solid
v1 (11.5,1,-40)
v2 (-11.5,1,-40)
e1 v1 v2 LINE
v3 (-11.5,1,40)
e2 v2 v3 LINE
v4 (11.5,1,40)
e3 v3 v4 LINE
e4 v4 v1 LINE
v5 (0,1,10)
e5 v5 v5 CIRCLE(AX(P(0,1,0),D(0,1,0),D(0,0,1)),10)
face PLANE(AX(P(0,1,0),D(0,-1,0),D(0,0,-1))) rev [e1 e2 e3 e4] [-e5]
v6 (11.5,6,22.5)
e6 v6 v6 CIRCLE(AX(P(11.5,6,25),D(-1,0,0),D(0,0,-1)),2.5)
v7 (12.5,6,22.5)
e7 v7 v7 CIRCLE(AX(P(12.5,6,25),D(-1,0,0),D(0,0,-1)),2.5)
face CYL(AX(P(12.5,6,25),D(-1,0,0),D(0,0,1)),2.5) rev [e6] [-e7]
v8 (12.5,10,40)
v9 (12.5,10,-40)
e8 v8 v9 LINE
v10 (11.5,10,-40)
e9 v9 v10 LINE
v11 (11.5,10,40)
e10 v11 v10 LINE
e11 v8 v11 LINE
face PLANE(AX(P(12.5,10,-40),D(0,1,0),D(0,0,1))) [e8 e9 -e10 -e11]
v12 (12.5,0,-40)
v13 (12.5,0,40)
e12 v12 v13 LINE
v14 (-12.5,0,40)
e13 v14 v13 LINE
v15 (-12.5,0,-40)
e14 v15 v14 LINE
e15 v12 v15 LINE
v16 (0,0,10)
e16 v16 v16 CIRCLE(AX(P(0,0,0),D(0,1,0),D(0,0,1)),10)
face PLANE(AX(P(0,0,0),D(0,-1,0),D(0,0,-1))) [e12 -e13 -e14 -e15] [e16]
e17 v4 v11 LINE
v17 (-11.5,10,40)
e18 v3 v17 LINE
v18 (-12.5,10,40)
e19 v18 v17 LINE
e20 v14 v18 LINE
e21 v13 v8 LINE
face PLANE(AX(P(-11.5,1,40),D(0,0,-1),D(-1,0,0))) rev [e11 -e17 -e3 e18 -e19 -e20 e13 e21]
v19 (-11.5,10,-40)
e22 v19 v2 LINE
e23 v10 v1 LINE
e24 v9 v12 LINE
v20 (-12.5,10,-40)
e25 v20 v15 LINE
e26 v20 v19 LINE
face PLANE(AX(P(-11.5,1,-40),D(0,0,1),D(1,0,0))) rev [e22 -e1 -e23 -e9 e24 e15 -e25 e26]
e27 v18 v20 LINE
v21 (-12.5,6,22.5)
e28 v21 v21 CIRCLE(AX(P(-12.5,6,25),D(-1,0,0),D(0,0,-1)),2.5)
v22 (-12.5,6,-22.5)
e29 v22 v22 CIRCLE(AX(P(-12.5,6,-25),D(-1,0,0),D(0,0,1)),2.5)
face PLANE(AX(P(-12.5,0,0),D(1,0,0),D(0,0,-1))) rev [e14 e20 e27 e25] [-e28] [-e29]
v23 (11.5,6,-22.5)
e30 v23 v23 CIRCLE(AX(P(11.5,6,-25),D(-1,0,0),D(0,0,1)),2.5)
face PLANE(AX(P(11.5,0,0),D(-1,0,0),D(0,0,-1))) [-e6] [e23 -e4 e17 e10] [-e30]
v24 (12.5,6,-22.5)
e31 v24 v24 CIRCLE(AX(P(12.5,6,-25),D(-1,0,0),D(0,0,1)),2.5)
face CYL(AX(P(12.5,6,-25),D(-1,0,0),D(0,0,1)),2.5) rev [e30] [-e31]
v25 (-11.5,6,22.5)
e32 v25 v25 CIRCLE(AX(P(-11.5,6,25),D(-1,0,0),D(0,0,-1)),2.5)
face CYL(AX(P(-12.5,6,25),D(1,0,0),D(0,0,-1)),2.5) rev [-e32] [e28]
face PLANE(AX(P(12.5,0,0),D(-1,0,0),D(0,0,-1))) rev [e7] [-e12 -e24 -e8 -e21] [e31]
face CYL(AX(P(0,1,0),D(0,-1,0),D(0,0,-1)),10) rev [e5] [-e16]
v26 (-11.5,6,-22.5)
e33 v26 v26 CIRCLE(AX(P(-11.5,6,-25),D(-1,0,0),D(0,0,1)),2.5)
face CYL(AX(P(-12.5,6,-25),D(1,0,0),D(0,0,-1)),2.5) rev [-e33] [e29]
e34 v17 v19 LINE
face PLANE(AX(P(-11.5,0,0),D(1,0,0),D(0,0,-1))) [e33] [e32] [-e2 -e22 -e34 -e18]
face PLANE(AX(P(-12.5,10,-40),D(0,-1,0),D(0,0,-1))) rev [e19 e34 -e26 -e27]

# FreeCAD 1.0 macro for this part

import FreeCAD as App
import Part
import Sketcher
from FreeCAD import Vector
Q = App.Units.Quantity


def add_polygon(sketch, points):
    """Adds a closed chain of lines whose ends are joined by coincident constraints."""
    first, n = sketch.GeometryCount, len(points)
    for a, b in zip(points, points[1:] + points[:1]):
        sketch.addGeometry(Part.LineSegment(App.Vector(*a, 0), App.Vector(*b, 0)), False)
    for i in range(n):
        sketch.addConstraint(Sketcher.Constraint("Coincident", first + i, 2, first + (i + 1) % n, 1))

doc = App.newDocument("Part")
body = doc.addObject("PartDesign::Body", "Body")

sketch1 = body.newObject("Sketcher::SketchObject", "Sketch")
sketch1.AttachmentSupport = (doc.getObject("XZ_Plane"), [""])
sketch1.MapMode = "FlatFace"
add_polygon(sketch1, [(-12, -40), (-12, 40), (12, 40), (12, -40)])
sketch1.addGeometry(Part.Circle(Vector(0, 0, 0), Vector(0, 0, 1), 10), False)
sketch1.addConstraint([
    Sketcher.Constraint("Vertical", 0),
    Sketcher.Constraint("Horizontal", 1),
    Sketcher.Constraint("Vertical", 2),
    Sketcher.Constraint("Horizontal", 3),
    Sketcher.Constraint("Coincident", 4, 3, -1, 1),
    Sketcher.Constraint("Symmetric", 0, 2, 2, 2, -1, 1),
    Sketcher.Constraint("Diameter", 4, Q("20 mm")),
    Sketcher.Constraint("DistanceX", 1, 1, 1, 2, Q("23 mm")),
    Sketcher.Constraint("DistanceY", 0, 1, 0, 2, Q("80 mm")),
])
pad1 = body.newObject("PartDesign::Pad", "Pad")
pad1.Profile = sketch1
pad1.Length = 1
pad1.Reversed = True

sketch2 = body.newObject("Sketcher::SketchObject", "Sketch001")
sketch2.AttachmentSupport = (doc.getObject("YZ_Plane"), [""])
sketch2.MapMode = "FlatFace"
sketch2.AttachmentOffset = App.Placement(Vector(0, 0, -11.5), App.Rotation())
add_polygon(sketch2, [(10, -40), (0, -40), (0, 40), (10, 40)])
sketch2.addGeometry(Part.Circle(Vector(6, -25, 0), Vector(0, 0, 1), 2.5), False)
sketch2.addGeometry(Part.Circle(Vector(6, 25, 0), Vector(0, 0, 1), 2.5), False)
sketch2.addConstraint([
    Sketcher.Constraint("Horizontal", 0),
    Sketcher.Constraint("Vertical", 1),
    Sketcher.Constraint("Horizontal", 2),
    Sketcher.Constraint("Vertical", 3),
    Sketcher.Constraint("Equal", 4, 5),
    Sketcher.Constraint("Symmetric", 0, 2, 1, 2, -1, 1),
    Sketcher.Constraint("Symmetric", 4, 3, 5, 3, -1),
    Sketcher.Constraint("Diameter", 4, Q("5 mm")),
    Sketcher.Constraint("DistanceX", 0, 2, 0, 1, Q("10 mm")),
    Sketcher.Constraint("DistanceY", 1, 1, 1, 2, Q("80 mm")),
    Sketcher.Constraint("DistanceX", -1, 1, 4, 3, Q("6 mm")),
    Sketcher.Constraint("DistanceY", 4, 3, -1, 1, Q("25 mm")),
])
pad2 = body.newObject("PartDesign::Pad", "Pad001")
pad2.Profile = sketch2
pad2.Length = 1
pad2.Reversed = True
doc.recompute()

mirrored = body.newObject("PartDesign::Mirrored", "Mirrored")
mirrored.Originals = [pad2]
mirrored.MirrorPlane = (doc.getObject("YZ_Plane"), [""])
body.Tip = mirrored

doc.recompute()
